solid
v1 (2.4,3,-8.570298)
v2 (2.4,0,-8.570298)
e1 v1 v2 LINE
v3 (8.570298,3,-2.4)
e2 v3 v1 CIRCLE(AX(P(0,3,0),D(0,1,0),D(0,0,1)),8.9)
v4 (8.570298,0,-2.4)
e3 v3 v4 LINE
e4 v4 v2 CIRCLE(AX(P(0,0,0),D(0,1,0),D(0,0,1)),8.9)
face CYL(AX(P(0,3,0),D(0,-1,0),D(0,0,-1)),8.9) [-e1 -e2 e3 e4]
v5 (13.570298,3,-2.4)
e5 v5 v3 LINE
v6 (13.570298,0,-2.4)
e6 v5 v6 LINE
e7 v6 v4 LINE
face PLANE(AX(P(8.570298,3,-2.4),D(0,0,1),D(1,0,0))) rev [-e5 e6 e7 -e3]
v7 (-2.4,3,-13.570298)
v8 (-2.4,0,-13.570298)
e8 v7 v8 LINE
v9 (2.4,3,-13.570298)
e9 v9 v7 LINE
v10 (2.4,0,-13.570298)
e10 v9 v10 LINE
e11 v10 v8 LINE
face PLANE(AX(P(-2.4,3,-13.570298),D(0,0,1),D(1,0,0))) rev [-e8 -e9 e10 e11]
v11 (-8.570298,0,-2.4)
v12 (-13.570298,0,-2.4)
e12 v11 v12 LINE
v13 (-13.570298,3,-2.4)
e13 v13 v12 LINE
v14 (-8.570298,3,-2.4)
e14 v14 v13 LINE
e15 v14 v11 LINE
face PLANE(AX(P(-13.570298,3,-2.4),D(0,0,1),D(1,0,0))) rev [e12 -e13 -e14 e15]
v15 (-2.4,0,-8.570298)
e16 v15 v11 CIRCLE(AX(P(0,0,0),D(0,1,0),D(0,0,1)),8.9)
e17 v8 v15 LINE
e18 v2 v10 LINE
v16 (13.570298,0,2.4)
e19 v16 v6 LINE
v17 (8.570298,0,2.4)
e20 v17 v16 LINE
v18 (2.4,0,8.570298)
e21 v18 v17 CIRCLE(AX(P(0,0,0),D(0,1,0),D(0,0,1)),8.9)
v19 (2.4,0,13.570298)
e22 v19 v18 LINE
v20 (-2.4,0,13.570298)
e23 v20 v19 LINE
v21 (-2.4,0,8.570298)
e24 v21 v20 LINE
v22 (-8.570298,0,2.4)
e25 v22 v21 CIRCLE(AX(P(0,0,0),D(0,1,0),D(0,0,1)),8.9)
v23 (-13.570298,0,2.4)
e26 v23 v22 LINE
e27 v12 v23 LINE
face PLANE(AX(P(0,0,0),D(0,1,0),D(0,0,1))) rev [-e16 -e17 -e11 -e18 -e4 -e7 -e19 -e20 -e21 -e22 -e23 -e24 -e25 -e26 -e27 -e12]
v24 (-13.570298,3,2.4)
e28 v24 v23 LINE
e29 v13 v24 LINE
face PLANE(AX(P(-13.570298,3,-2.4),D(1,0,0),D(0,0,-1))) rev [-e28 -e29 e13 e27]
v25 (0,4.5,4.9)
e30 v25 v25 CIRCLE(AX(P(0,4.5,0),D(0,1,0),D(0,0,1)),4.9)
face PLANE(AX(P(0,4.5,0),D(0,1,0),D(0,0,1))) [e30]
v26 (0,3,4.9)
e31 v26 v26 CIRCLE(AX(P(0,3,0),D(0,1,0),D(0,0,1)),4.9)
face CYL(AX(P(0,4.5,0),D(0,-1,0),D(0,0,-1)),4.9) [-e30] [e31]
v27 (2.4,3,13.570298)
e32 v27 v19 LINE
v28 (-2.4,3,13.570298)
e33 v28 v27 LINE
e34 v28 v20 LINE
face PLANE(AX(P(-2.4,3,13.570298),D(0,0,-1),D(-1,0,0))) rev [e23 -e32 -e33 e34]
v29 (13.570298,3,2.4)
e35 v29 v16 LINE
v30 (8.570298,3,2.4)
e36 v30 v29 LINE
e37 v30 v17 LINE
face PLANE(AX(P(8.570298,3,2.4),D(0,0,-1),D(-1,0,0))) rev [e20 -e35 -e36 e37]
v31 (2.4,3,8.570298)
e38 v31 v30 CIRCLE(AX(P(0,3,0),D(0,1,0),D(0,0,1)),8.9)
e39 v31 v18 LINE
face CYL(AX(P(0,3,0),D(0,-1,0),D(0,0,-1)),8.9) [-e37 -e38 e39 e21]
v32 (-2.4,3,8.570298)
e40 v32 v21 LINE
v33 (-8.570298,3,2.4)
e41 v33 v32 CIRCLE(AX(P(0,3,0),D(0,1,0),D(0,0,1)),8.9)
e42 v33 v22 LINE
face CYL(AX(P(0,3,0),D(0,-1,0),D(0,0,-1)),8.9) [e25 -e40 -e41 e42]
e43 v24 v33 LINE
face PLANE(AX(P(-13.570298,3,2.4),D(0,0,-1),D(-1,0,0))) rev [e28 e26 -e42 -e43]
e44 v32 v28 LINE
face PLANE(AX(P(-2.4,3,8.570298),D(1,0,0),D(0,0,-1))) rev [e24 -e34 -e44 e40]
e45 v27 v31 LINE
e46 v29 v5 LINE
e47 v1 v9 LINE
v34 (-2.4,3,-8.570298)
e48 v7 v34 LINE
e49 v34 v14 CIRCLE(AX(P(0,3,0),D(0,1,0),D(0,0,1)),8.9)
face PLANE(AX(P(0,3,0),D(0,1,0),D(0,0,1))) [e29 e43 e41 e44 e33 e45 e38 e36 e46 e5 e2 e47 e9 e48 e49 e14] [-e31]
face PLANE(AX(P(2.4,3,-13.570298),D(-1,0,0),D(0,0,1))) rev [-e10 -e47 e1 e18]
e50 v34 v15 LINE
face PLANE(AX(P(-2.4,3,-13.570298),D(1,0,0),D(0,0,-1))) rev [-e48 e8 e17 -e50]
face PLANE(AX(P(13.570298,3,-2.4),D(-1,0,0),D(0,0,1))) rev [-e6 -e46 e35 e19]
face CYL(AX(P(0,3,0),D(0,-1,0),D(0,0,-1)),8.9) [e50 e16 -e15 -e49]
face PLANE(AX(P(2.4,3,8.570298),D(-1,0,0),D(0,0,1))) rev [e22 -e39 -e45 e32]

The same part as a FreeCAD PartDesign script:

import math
import FreeCAD as App
import Part
import Sketcher
from FreeCAD import Vector

doc = App.newDocument("Part")
body = doc.addObject("PartDesign::Body", "Body")

# Sketch on XZ plane
sketch1 = doc.addObject("Sketcher::SketchObject", "Sketch")
body.addObject(sketch1)
sketch1.AttachmentSupport = (doc.XZ_Plane, [""])
sketch1.MapMode = "FlatFace"
sketch1.addGeometry([
    Part.LineSegment(Vector(-8.6, -2.4, 0), Vector(-13.6, -2.4, 0)),  # 0
    Part.LineSegment(Vector(-13.6, -2.4, 0), Vector(-13.6, 2.4, 0)),  # 1
    Part.LineSegment(Vector(-13.6, 2.4, 0), Vector(-8.6, 2.4, 0)),  # 2
    Part.ArcOfCircle(Part.Circle(Vector(0, 0, 0), Vector(0, 0, 1), 8.9), math.radians(106), math.radians(164)),  # 3
    Part.LineSegment(Vector(-2.4, 8.6, 0), Vector(-2.4, 13.6, 0)),  # 4
    Part.LineSegment(Vector(-2.4, 13.6, 0), Vector(2.4, 13.6, 0)),  # 5
    Part.LineSegment(Vector(2.4, 13.6, 0), Vector(2.4, 8.6, 0)),  # 6
    Part.ArcOfCircle(Part.Circle(Vector(0, 0, 0), Vector(0, 0, 1), 8.9), math.radians(16), math.radians(74)),  # 7
    Part.LineSegment(Vector(8.6, 2.4, 0), Vector(13.6, 2.4, 0)),  # 8
    Part.LineSegment(Vector(13.6, 2.4, 0), Vector(13.6, -2.4, 0)),  # 9
    Part.LineSegment(Vector(13.6, -2.4, 0), Vector(8.6, -2.4, 0)),  # 10
    Part.ArcOfCircle(Part.Circle(Vector(0, 0, 0), Vector(0, 0, 1), 8.9), math.radians(-74), math.radians(-16)),  # 11
    Part.LineSegment(Vector(2.4, -8.6, 0), Vector(2.4, -13.6, 0)),  # 12
    Part.LineSegment(Vector(2.4, -13.6, 0), Vector(-2.4, -13.6, 0)),  # 13
    Part.LineSegment(Vector(-2.4, -13.6, 0), Vector(-2.4, -8.6, 0)),  # 14
    Part.ArcOfCircle(Part.Circle(Vector(0, 0, 0), Vector(0, 0, 1), 8.9), math.radians(-164), math.radians(-106)),  # 15
], False)
sketch1.addConstraint([
    Sketcher.Constraint("Coincident", 0, 2, 1, 1),
    Sketcher.Constraint("Coincident", 1, 2, 2, 1),
    Sketcher.Constraint("Coincident", 2, 2, 3, 2),
    Sketcher.Constraint("Coincident", 3, 1, 4, 1),
    Sketcher.Constraint("Coincident", 4, 2, 5, 1),
    Sketcher.Constraint("Coincident", 5, 2, 6, 1),
    Sketcher.Constraint("Coincident", 6, 2, 7, 2),
    Sketcher.Constraint("Coincident", 7, 1, 8, 1),
    Sketcher.Constraint("Coincident", 8, 2, 9, 1),
    Sketcher.Constraint("Coincident", 9, 2, 10, 1),
    Sketcher.Constraint("Coincident", 10, 2, 11, 2),
    Sketcher.Constraint("Coincident", 11, 1, 12, 1),
    Sketcher.Constraint("Coincident", 12, 2, 13, 1),
    Sketcher.Constraint("Coincident", 13, 2, 14, 1),
    Sketcher.Constraint("Coincident", 14, 2, 15, 2),
    Sketcher.Constraint("Coincident", 15, 1, 0, 1),
    Sketcher.Constraint("Horizontal", 0),
    Sketcher.Constraint("Vertical", 1),
    Sketcher.Constraint("Horizontal", 2),
    Sketcher.Constraint("Vertical", 4),
    Sketcher.Constraint("Horizontal", 5),
    Sketcher.Constraint("Vertical", 6),
    Sketcher.Constraint("Horizontal", 8),
    Sketcher.Constraint("Vertical", 9),
    Sketcher.Constraint("Horizontal", 10),
    Sketcher.Constraint("Vertical", 12),
    Sketcher.Constraint("Horizontal", 13),
    Sketcher.Constraint("Vertical", 14),
    Sketcher.Constraint("Coincident", 3, 3, -1, 1),
    Sketcher.Constraint("Coincident", 7, 3, -1, 1),
    Sketcher.Constraint("Coincident", 11, 3, -1, 1),
    Sketcher.Constraint("Coincident", 15, 3, -1, 1),
    Sketcher.Constraint("Equal", 3, 7),
    Sketcher.Constraint("Equal", 7, 11),
    Sketcher.Constraint("Equal", 11, 15),
    Sketcher.Constraint("Symmetric", 0, 2, 8, 2, -1, 1),
    Sketcher.Constraint("Symmetric", 4, 2, 12, 2, -1, 1),
    Sketcher.Constraint("Horizontal", 3, 1, 6, 2),
    Sketcher.Constraint("Horizontal", 2, 2, 7, 1),
    Sketcher.Constraint("Horizontal", 0, 2, 9, 2),
    Sketcher.Constraint("Horizontal", 11, 1, 14, 2),
    Sketcher.Constraint("Equal", 13, 1),
    Sketcher.Constraint("Equal", 10, 4),
    Sketcher.Constraint("Radius", 3, 8.9),
    Sketcher.Constraint("DistanceX", 0, 2, 0, 1, 5.0),
    Sketcher.Constraint("DistanceX", 5, 1, 5, 2, 4.8),
])
pad1 = doc.addObject("PartDesign::Pad", "Pad")
body.addObject(pad1)
pad1.Profile = sketch1
pad1.Length = 3
pad1.Reversed = True

# Sketch on XZ plane
sketch2 = doc.addObject("Sketcher::SketchObject", "Sketch001")
body.addObject(sketch2)
sketch2.AttachmentSupport = (doc.XZ_Plane, [""])
sketch2.MapMode = "FlatFace"
sketch2.AttachmentOffset = App.Placement(Vector(0, 0, -3), App.Rotation())
sketch2.addGeometry(Part.Circle(Vector(0, 0, 0), Vector(0, 0, 1), 4.9), False)
sketch2.addConstraint([
    Sketcher.Constraint("Coincident", 0, 3, -1, 1),
    Sketcher.Constraint("Diameter", 0, 9.8),
])
pad2 = doc.addObject("PartDesign::Pad", "Pad001")
body.addObject(pad2)
pad2.Profile = sketch2
pad2.Length = 1.5
pad2.Reversed = True

doc.recompute()
